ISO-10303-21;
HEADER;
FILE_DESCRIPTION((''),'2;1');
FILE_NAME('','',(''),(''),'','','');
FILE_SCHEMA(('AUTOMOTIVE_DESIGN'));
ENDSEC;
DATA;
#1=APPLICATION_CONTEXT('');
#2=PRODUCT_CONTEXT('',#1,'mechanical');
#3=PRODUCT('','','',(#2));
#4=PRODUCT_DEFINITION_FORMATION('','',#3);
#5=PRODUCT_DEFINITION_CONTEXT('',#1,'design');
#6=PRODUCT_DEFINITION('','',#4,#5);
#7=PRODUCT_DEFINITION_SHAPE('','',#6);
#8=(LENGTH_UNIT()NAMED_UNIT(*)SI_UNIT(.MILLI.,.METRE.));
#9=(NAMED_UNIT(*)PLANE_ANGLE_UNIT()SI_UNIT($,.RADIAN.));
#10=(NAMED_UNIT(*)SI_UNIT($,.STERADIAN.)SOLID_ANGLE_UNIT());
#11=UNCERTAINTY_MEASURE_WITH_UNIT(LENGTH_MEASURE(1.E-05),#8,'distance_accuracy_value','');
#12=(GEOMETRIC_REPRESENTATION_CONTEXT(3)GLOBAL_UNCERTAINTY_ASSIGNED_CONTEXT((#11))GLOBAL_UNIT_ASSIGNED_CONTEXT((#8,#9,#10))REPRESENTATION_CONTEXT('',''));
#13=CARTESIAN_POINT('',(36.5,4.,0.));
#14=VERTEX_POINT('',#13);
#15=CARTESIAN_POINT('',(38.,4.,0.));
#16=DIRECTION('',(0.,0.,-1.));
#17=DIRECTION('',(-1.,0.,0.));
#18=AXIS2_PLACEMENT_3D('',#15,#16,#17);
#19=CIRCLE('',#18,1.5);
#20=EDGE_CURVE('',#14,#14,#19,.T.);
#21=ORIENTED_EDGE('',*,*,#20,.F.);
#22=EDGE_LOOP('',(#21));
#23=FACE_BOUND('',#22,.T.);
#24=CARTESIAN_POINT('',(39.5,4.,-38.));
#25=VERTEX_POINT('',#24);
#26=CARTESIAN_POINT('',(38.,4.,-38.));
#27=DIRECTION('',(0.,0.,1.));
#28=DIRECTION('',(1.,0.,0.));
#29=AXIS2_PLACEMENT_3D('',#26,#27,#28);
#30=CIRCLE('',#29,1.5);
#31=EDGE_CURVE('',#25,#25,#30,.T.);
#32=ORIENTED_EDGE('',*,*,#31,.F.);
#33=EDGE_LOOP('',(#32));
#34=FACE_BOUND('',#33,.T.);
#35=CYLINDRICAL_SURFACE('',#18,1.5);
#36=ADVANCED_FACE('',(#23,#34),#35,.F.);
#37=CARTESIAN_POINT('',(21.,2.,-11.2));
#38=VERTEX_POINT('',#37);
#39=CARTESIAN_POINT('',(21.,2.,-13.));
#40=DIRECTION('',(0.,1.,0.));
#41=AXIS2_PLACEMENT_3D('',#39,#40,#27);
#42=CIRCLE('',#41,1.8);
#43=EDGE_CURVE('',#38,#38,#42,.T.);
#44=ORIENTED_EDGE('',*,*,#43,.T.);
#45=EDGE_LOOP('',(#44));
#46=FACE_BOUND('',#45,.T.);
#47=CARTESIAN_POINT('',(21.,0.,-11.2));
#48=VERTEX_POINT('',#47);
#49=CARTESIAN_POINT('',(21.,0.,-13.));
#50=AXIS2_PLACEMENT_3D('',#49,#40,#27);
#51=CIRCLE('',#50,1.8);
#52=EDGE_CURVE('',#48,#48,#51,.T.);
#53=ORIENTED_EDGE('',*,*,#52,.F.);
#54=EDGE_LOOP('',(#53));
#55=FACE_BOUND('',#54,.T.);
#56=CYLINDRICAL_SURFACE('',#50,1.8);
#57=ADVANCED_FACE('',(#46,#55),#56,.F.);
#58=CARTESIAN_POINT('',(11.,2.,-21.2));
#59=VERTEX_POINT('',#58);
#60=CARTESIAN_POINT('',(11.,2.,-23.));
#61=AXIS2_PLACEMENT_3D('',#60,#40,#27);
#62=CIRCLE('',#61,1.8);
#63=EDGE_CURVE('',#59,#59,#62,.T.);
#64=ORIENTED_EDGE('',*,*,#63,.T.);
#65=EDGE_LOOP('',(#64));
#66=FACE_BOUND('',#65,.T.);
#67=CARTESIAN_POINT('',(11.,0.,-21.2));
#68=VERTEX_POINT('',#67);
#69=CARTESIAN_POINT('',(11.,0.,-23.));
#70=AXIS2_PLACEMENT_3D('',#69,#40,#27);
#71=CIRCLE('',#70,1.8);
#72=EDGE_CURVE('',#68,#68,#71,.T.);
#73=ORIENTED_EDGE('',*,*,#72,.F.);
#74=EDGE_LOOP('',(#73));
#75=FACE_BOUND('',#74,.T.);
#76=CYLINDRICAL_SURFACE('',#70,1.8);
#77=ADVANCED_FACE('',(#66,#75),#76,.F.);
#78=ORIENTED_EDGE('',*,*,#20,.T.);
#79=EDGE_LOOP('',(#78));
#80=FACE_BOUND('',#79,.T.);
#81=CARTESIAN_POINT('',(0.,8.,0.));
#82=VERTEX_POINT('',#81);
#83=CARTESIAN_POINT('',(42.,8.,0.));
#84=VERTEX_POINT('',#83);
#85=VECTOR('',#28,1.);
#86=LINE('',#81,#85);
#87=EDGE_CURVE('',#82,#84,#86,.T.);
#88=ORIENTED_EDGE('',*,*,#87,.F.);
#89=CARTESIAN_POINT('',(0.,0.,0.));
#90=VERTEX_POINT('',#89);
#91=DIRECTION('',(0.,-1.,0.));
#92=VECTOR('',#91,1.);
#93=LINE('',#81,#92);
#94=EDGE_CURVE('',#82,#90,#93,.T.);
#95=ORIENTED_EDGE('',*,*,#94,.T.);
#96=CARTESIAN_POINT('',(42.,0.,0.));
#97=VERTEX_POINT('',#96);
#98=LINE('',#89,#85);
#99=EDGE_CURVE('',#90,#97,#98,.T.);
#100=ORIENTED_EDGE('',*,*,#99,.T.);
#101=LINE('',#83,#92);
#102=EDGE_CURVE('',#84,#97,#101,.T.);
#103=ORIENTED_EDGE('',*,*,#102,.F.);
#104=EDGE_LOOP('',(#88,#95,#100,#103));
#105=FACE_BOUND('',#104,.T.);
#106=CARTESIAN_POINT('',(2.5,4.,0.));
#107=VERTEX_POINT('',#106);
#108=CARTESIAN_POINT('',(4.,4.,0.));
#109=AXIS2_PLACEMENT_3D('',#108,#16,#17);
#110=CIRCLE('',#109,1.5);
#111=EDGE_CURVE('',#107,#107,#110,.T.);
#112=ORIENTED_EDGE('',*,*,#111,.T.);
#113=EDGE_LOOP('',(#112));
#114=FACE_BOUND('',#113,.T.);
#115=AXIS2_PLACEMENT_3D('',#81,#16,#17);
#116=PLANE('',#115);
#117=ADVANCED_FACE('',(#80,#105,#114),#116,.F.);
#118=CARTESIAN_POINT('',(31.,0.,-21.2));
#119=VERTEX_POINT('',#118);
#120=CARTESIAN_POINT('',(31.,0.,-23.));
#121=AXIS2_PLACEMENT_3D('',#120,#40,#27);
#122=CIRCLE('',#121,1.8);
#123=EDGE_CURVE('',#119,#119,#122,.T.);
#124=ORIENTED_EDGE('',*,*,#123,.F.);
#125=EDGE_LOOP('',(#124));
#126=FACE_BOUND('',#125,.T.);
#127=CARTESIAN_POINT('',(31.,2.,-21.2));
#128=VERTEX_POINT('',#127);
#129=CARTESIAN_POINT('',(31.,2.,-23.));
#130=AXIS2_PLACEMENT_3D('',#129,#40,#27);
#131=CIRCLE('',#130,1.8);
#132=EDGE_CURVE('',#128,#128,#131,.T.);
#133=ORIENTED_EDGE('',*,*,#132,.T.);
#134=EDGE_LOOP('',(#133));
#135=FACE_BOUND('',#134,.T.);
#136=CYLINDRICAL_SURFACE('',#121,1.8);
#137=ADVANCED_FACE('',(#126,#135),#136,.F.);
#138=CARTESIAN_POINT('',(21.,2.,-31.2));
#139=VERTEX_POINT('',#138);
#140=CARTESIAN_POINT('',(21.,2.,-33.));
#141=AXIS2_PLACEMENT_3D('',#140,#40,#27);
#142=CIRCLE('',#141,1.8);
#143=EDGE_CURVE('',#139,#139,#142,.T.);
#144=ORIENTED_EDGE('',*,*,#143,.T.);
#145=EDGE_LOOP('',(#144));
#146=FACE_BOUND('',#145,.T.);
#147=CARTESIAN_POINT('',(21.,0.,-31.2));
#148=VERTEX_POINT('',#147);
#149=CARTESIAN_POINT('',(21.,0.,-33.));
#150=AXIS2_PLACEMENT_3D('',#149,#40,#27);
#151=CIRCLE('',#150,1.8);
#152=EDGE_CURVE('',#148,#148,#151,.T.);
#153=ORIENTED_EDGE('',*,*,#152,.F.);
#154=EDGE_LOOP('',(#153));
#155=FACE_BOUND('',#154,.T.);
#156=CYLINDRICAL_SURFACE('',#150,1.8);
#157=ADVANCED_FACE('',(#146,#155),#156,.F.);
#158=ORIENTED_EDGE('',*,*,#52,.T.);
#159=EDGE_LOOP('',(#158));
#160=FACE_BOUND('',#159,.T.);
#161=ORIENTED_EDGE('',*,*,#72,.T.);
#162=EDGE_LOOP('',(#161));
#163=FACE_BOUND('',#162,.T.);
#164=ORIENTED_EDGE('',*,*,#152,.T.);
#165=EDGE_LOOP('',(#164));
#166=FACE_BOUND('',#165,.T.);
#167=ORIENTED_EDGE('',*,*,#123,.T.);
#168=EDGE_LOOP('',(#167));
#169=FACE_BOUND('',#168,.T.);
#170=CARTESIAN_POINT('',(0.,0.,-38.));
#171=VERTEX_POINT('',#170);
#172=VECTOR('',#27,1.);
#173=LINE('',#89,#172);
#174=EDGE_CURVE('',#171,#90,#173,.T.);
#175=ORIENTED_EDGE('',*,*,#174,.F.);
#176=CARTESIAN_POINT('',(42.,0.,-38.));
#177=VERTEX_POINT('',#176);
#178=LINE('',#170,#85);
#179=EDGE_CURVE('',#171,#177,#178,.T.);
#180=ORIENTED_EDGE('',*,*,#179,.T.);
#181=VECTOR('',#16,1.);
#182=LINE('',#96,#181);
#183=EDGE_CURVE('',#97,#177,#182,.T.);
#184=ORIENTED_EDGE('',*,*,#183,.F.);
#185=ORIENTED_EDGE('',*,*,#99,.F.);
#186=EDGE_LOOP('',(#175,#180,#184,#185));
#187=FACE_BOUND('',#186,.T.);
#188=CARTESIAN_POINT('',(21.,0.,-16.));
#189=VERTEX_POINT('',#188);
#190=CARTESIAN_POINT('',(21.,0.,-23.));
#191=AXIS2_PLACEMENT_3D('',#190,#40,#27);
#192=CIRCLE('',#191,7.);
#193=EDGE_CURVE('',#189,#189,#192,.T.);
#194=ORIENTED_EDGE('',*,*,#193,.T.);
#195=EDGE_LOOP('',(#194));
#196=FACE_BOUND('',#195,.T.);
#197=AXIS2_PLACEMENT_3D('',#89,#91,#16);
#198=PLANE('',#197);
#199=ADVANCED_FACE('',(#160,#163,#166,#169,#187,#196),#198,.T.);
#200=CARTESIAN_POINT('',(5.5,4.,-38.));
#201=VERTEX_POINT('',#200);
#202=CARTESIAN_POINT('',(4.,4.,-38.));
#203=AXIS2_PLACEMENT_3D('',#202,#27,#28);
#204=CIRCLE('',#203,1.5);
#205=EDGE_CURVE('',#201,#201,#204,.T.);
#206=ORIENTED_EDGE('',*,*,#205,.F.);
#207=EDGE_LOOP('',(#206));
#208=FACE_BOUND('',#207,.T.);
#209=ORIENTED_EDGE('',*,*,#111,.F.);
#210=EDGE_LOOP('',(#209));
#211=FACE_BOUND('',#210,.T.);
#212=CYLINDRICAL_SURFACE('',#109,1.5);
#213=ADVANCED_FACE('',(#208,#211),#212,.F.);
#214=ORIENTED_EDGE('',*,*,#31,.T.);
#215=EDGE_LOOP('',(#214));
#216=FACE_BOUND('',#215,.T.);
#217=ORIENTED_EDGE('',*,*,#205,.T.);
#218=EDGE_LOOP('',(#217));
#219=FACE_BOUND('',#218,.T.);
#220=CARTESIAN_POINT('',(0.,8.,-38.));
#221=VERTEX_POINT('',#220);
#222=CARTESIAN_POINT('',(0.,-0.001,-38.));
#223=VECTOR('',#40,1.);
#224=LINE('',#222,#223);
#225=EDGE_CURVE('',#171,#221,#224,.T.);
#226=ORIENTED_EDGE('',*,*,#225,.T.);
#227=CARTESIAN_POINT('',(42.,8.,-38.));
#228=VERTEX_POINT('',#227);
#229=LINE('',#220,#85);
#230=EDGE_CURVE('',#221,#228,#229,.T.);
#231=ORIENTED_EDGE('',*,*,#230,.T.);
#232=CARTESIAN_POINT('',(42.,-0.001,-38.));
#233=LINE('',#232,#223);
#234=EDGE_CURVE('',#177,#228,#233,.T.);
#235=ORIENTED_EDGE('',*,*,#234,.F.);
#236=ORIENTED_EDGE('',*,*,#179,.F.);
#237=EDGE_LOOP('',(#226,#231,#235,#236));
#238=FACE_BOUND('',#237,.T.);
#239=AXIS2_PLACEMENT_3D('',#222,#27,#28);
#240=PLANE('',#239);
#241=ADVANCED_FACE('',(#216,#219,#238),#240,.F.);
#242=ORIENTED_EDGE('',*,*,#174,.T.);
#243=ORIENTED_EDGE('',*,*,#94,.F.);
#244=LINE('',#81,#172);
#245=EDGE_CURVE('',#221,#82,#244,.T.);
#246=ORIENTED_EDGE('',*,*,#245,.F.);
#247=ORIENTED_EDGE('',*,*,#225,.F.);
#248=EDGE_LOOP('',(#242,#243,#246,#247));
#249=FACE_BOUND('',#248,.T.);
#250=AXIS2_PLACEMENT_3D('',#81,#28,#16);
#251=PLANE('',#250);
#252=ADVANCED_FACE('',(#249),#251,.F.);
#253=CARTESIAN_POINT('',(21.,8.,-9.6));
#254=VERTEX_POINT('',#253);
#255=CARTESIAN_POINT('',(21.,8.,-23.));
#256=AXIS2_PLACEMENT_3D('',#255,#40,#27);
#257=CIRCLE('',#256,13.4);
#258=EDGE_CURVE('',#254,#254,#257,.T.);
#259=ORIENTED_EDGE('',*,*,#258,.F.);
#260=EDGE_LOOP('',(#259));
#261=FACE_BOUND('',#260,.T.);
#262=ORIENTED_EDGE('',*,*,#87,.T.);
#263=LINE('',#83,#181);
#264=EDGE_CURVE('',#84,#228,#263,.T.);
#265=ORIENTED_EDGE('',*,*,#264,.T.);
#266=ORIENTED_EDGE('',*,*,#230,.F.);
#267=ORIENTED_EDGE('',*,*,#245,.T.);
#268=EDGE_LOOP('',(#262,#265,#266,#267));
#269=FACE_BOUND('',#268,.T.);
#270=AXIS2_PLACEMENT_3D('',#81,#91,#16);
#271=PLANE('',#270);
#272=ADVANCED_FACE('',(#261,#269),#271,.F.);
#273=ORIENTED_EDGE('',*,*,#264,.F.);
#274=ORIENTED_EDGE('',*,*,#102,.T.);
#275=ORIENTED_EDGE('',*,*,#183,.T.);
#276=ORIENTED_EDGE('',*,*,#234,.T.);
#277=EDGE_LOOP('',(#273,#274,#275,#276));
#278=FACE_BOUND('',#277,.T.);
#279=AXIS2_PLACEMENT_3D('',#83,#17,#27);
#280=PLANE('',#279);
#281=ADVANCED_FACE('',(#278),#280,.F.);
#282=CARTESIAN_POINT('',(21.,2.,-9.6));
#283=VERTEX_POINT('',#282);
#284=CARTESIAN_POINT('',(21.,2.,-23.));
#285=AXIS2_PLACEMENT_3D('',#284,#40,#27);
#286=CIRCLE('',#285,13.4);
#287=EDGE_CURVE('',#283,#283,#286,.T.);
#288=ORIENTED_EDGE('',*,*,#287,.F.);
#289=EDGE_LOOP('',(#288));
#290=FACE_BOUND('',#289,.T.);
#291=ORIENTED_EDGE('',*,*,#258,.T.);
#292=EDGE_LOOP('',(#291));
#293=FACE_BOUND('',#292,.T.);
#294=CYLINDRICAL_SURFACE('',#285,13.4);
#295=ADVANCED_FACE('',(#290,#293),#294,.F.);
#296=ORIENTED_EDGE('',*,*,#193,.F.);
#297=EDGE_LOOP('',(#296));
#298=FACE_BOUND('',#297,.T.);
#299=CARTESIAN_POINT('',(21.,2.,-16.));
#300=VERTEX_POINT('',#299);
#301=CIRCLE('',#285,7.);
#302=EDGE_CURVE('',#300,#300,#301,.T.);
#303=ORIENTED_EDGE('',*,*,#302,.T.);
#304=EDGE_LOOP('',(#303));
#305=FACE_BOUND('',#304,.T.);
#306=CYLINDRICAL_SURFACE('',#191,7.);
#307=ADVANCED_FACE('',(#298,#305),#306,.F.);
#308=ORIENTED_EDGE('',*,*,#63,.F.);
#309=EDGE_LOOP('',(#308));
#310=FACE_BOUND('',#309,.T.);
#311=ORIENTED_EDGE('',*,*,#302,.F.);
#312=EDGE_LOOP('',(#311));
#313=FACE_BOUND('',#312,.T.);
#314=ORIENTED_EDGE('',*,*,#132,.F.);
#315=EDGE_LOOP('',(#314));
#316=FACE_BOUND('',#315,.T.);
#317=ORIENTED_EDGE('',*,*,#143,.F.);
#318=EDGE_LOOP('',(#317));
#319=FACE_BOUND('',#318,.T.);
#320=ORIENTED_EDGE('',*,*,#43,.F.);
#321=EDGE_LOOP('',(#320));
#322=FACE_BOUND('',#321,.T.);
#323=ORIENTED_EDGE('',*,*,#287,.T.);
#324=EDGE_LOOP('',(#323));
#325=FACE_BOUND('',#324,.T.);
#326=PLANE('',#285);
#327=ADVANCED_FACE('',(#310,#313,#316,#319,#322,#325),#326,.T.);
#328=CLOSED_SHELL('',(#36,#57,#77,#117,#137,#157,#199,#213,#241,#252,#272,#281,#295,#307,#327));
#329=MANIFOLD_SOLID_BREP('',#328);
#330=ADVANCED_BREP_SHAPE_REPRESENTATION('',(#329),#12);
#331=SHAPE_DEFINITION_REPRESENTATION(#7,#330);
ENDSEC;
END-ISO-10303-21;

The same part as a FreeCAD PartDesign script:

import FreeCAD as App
import Part
import Sketcher


def add_polygon(sketch, points):
    """Adds a closed chain of lines whose ends are joined by coincident constraints."""
    first, n = sketch.GeometryCount, len(points)
    for a, b in zip(points, points[1:] + points[:1]):
        sketch.addGeometry(Part.LineSegment(App.Vector(*a, 0), App.Vector(*b, 0)), False)
    for i in range(n):
        sketch.addConstraint(Sketcher.Constraint("Coincident", first + i, 2, first + (i + 1) % n, 1))

doc = App.newDocument("Part")
body = doc.addObject("PartDesign::Body", "Body")

# Sketch on XZ plane
sketch1 = body.newObject("Sketcher::SketchObject", "Sketch")
sketch1.AttachmentSupport = (doc.getObject("XZ_Plane"), [""])
sketch1.MapMode = "FlatFace"
add_polygon(sketch1, [(0, -46), (0, 0), (42, 0), (42, -46)])  # lines 0-3
sketch1.addConstraint(Sketcher.Constraint("Vertical", 0))
sketch1.addConstraint(Sketcher.Constraint("Horizontal", 1))
sketch1.addConstraint(Sketcher.Constraint("Vertical", 2))
sketch1.addConstraint(Sketcher.Constraint("Horizontal", 3))
sketch1.addConstraint(Sketcher.Constraint("Coincident", 0, 2, -1, 1))
sketch1.addConstraint(Sketcher.Constraint("DistanceX", 1, 1, 1, 2, 42.0))
sketch1.addConstraint(Sketcher.Constraint("DistanceY", 0, 1, 0, 2, 46.0))
pad1 = body.newObject("PartDesign::Pad", "Pad")
pad1.Profile = sketch1
pad1.Length = 8
pad1.Reversed = True

# Sketch on XZ plane
sketch2 = body.newObject("Sketcher::SketchObject", "Sketch001")
sketch2.AttachmentSupport = (doc.getObject("XZ_Plane"), [""])
sketch2.MapMode = "FlatFace"
sketch2.AttachmentOffset = App.Placement(App.Vector(0, 0, -8), App.Rotation())
sketch2.addGeometry(Part.Circle(App.Vector(21, -23, 0), App.Vector(0, 0, 1), 13), False)
sketch2.addConstraint(Sketcher.Constraint("Diameter", 0, 26.8))
sketch2.addConstraint(Sketcher.Constraint("DistanceX", -1, 1, 0, 3, 21.0))
sketch2.addConstraint(Sketcher.Constraint("DistanceY", 0, 3, -1, 1, 23.0))
pocket1 = body.newObject("PartDesign::Pocket", "Pocket")
pocket1.Profile = sketch2
pocket1.Length = 6
pocket1.Reversed = True

# Sketch on XZ plane
sketch3 = body.newObject("Sketcher::SketchObject", "Sketch002")
sketch3.AttachmentSupport = (doc.getObject("XZ_Plane"), [""])
sketch3.MapMode = "FlatFace"
sketch3.AttachmentOffset = App.Placement(App.Vector(0, 0, -2), App.Rotation())
sketch3.addGeometry(Part.Circle(App.Vector(21, -23, 0), App.Vector(0, 0, 1), 7), False)
sketch3.addGeometry(Part.Circle(App.Vector(21, -33, 0), App.Vector(0, 0, 1), 1.8), False)
sketch3.addGeometry(Part.Circle(App.Vector(31, -23, 0), App.Vector(0, 0, 1), 1.8), False)
sketch3.addGeometry(Part.Circle(App.Vector(21, -13, 0), App.Vector(0, 0, 1), 1.8), False)
sketch3.addGeometry(Part.Circle(App.Vector(11, -23, 0), App.Vector(0, 0, 1), 1.8), False)
sketch3.addConstraint(Sketcher.Constraint("Equal", 1, 2))
sketch3.addConstraint(Sketcher.Constraint("Equal", 2, 3))
sketch3.addConstraint(Sketcher.Constraint("Equal", 3, 4))
sketch3.addConstraint(Sketcher.Constraint("Horizontal", 0, 3, 2, 3))
sketch3.addConstraint(Sketcher.Constraint("Horizontal", 2, 3, 4, 3))
sketch3.addConstraint(Sketcher.Constraint("Vertical", 0, 3, 1, 3))
sketch3.addConstraint(Sketcher.Constraint("Vertical", 1, 3, 3, 3))
sketch3.addConstraint(Sketcher.Constraint("Diameter", 0, 14.0))
sketch3.addConstraint(Sketcher.Constraint("Diameter", 1, 3.6))
sketch3.addConstraint(Sketcher.Constraint("DistanceX", -1, 1, 0, 3, 21.0))
sketch3.addConstraint(Sketcher.Constraint("DistanceY", 0, 3, -1, 1, 23.0))
sketch3.addConstraint(Sketcher.Constraint("DistanceY", 1, 3, -1, 1, 33.0))
sketch3.addConstraint(Sketcher.Constraint("DistanceX", -1, 1, 2, 3, 31.0))
sketch3.addConstraint(Sketcher.Constraint("DistanceY", 3, 3, -1, 1, 13.0))
sketch3.addConstraint(Sketcher.Constraint("DistanceX", -1, 1, 4, 3, 11.0))
pocket2 = body.newObject("PartDesign::Pocket", "Pocket001")
pocket2.Profile = sketch3
pocket2.Type = "ThroughAll"
pocket2.Reversed = True

# Sketch on XY plane
sketch4 = body.newObject("Sketcher::SketchObject", "Sketch003")
sketch4.AttachmentSupport = (doc.getObject("XY_Plane"), [""])
sketch4.MapMode = "FlatFace"
sketch4.AttachmentOffset = App.Placement(App.Vector(0, 0, -46), App.Rotation())
sketch4.addGeometry(Part.Circle(App.Vector(38, 4, 0), App.Vector(0, 0, 1), 1.5), False)
sketch4.addGeometry(Part.Circle(App.Vector(4, 4, 0), App.Vector(0, 0, 1), 1.5), False)
sketch4.addConstraint(Sketcher.Constraint("Equal", 0, 1))
sketch4.addConstraint(Sketcher.Constraint("Horizontal", 0, 3, 1, 3))
sketch4.addConstraint(Sketcher.Constraint("Diameter", 0, 3.0))
sketch4.addConstraint(Sketcher.Constraint("DistanceX", -1, 1, 0, 3, 38.0))
sketch4.addConstraint(Sketcher.Constraint("DistanceY", -1, 1, 0, 3, 4.0))
sketch4.addConstraint(Sketcher.Constraint("DistanceX", -1, 1, 1, 3, 4.0))
pocket3 = body.newObject("PartDesign::Pocket", "Pocket002")
pocket3.Profile = sketch4
pocket3.Type = "ThroughAll"
pocket3.Reversed = True

# Sketch on XZ plane
sketch5 = body.newObject("Sketcher::SketchObject", "Sketch004")
sketch5.AttachmentSupport = (doc.getObject("XZ_Plane"), [""])
sketch5.MapMode = "FlatFace"
sketch5.AttachmentOffset = App.Placement(App.Vector(0, 0, -8), App.Rotation())
add_polygon(sketch5, [(0, -46), (0, -38), (42, -38), (42, -46)])  # lines 0-3
sketch5.addConstraint(Sketcher.Constraint("Vertical", 0))
sketch5.addConstraint(Sketcher.Constraint("Horizontal", 1))
sketch5.addConstraint(Sketcher.Constraint("Vertical", 2))
sketch5.addConstraint(Sketcher.Constraint("Horizontal", 3))
sketch5.addConstraint(Sketcher.Constraint("PointOnObject", 0, 2, -2))
sketch5.addConstraint(Sketcher.Constraint("DistanceX", 1, 1, 1, 2, 42.0))
sketch5.addConstraint(Sketcher.Constraint("DistanceY", 0, 1, 0, 2, 8.0))
sketch5.addConstraint(Sketcher.Constraint("DistanceY", 0, 2, -1, 1, 38.0))
pocket4 = body.newObject("PartDesign::Pocket", "Pocket003")
pocket4.Profile = sketch5
pocket4.Type = "UpToFirst"
pocket4.Reversed = True

doc.recompute()
